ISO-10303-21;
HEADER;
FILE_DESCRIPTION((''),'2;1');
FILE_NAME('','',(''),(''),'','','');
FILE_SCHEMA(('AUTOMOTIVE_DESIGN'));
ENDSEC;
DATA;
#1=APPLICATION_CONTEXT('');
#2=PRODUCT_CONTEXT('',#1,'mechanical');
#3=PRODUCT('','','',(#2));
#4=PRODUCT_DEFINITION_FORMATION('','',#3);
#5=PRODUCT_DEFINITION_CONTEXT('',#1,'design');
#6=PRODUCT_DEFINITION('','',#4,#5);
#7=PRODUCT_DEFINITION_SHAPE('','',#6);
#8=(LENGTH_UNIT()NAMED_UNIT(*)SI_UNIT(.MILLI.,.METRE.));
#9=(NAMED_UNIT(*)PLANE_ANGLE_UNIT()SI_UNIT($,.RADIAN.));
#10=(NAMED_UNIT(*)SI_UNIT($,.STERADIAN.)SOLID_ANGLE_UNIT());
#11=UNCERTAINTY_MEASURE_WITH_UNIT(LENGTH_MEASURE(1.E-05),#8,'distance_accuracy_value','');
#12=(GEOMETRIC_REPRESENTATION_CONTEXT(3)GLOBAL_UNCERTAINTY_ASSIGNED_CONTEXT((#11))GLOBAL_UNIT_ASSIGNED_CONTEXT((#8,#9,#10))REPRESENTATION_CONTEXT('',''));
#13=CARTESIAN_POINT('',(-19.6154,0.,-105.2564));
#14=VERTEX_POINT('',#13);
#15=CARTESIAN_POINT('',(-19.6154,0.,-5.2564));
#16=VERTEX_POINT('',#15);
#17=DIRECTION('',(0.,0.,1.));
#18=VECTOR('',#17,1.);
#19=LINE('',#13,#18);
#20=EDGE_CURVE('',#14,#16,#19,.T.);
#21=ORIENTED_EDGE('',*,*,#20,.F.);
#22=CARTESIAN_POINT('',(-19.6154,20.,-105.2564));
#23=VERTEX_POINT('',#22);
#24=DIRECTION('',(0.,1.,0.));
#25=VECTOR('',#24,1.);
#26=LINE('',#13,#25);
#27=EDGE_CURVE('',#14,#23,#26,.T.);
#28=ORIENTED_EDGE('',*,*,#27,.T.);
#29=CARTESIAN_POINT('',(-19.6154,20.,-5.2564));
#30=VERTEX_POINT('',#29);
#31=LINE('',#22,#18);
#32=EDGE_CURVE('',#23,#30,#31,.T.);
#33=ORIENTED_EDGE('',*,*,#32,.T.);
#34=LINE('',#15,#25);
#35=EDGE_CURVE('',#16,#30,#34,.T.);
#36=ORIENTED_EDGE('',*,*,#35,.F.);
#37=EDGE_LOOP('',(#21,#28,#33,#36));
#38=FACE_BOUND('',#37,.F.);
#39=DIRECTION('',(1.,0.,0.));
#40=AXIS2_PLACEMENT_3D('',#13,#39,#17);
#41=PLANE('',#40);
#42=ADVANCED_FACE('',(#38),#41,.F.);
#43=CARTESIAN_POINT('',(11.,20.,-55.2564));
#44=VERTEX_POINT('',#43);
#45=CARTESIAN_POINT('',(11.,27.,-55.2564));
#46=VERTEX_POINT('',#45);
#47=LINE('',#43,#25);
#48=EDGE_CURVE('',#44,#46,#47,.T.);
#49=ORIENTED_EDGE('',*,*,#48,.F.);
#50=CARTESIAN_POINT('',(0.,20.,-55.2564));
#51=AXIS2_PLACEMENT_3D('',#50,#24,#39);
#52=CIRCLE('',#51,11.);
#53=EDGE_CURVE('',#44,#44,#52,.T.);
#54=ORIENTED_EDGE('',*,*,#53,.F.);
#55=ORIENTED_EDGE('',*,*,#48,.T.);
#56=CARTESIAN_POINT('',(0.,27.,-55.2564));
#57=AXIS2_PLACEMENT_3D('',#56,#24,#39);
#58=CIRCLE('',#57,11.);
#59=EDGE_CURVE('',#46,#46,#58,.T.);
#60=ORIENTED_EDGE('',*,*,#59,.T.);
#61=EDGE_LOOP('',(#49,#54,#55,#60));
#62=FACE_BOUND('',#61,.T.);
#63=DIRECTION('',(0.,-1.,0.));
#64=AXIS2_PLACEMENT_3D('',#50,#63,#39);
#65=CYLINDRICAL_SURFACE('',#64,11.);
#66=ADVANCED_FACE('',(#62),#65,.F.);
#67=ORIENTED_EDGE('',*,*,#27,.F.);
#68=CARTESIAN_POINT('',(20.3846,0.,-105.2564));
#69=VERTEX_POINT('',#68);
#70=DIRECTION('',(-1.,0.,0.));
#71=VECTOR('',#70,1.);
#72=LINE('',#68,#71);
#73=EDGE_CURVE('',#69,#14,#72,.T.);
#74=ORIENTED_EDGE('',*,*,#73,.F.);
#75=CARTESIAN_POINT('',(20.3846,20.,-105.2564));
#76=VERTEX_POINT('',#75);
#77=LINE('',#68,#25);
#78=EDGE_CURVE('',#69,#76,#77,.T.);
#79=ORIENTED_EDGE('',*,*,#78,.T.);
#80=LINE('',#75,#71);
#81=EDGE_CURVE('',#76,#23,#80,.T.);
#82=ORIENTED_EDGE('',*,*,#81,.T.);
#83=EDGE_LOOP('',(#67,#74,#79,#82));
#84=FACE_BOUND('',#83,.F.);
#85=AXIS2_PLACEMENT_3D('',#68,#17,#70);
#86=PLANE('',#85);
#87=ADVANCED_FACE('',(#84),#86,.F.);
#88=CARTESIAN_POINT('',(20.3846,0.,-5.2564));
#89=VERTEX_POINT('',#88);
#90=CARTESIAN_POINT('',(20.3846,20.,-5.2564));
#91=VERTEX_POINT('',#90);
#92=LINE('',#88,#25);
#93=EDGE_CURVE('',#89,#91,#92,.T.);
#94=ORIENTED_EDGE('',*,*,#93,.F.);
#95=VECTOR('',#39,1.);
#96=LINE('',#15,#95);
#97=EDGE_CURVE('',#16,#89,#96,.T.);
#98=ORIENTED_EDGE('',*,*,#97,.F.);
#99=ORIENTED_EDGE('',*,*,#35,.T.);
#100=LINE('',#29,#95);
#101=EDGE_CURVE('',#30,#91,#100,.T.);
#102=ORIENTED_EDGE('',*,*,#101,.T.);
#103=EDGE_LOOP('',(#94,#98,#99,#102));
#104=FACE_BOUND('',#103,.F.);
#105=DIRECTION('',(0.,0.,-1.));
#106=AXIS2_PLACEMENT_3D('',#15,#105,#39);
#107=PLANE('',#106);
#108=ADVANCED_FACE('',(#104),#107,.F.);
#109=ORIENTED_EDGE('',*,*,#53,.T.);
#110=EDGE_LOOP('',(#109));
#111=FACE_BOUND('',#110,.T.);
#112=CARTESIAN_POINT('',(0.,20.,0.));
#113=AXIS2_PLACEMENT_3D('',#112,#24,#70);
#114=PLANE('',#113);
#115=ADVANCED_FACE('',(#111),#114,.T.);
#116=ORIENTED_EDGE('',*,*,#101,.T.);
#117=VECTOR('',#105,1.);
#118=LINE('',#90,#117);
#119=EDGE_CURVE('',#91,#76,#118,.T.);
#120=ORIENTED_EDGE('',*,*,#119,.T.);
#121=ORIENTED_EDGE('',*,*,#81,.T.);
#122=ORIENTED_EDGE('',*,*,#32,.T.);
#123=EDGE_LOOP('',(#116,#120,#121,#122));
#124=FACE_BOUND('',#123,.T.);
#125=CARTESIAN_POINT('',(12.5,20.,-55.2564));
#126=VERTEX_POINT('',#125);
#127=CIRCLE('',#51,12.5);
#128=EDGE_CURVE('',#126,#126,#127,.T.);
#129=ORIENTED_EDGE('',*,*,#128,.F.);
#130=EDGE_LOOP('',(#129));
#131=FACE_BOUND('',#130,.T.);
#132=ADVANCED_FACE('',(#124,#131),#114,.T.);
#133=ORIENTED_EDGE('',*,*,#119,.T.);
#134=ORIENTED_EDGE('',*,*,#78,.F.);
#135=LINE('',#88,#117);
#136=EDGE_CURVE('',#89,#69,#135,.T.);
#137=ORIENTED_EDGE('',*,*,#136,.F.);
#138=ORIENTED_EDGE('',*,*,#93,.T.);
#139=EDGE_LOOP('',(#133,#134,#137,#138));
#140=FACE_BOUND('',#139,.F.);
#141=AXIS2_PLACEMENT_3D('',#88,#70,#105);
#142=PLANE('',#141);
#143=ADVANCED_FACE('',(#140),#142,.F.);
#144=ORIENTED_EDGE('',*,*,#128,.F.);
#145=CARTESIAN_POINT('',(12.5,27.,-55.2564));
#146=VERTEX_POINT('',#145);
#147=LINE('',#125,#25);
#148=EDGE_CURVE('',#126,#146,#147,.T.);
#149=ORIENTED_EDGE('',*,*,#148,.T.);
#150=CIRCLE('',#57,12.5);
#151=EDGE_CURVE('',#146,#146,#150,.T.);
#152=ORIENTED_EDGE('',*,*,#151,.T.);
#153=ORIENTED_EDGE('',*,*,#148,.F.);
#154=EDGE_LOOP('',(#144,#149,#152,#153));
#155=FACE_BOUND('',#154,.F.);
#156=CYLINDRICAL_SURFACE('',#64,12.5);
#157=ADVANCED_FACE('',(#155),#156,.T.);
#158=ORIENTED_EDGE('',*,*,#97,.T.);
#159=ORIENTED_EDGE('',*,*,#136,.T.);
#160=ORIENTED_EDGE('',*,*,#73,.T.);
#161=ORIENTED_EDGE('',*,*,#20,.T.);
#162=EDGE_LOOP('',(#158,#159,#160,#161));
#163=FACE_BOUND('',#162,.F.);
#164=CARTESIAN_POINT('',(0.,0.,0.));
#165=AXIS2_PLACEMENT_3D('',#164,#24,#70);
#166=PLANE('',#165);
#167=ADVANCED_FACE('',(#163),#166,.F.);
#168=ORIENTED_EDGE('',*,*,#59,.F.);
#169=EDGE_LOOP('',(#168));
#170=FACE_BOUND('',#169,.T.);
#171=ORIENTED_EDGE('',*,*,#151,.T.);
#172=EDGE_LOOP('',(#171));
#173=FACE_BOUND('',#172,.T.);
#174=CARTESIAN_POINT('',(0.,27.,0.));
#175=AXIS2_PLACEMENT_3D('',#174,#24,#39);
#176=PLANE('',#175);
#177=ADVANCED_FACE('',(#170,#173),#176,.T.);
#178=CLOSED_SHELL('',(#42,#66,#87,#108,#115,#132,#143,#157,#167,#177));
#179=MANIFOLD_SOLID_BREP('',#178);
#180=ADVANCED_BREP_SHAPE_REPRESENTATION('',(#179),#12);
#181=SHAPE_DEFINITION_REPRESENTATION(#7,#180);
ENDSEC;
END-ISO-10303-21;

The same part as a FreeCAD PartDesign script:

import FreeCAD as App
import Part
import Sketcher

V = App.Vector
Q = App.Units.Quantity

doc = App.newDocument("Part")
body = doc.addObject("PartDesign::Body", "Body")

# Sketch on XZ plane
sketch1 = doc.addObject("Sketcher::SketchObject", "Sketch")
body.addObject(sketch1)
sketch1.AttachmentSupport = (doc.XZ_Plane, [""])
sketch1.MapMode = "FlatFace"
sketch1.addGeometry([
    Part.LineSegment(V(-19.6154, -105.2564, 0), V(-19.6154, -5.2564, 0)),
    Part.LineSegment(V(-19.6154, -5.2564, 0), V(20.3846, -5.2564, 0)),
    Part.LineSegment(V(20.3846, -5.2564, 0), V(20.3846, -105.2564, 0)),
    Part.LineSegment(V(20.3846, -105.2564, 0), V(-19.6154, -105.2564, 0)),
], False)
sketch1.addConstraint([
    Sketcher.Constraint("Coincident", 0, 2, 1, 1),
    Sketcher.Constraint("Coincident", 1, 2, 2, 1),
    Sketcher.Constraint("Coincident", 2, 2, 3, 1),
    Sketcher.Constraint("Coincident", 3, 2, 0, 1),
    Sketcher.Constraint("Vertical", 0),
    Sketcher.Constraint("Horizontal", 1),
    Sketcher.Constraint("Vertical", 2),
    Sketcher.Constraint("Horizontal", 3),
    Sketcher.Constraint("DistanceX", 1, 1, 1, 2, Q("40 mm")),
    Sketcher.Constraint("DistanceY", 0, 1, 0, 2, Q("100 mm")),
    Sketcher.Constraint("DistanceX", 0, 2, -1, 1, Q("19.6154 mm")),
    Sketcher.Constraint("DistanceY", 0, 2, -1, 1, Q("5.2564 mm")),
])
pad1 = doc.addObject("PartDesign::Pad", "Pad")
body.addObject(pad1)
pad1.Profile = sketch1
pad1.Length = 20
pad1.Reversed = True

# Sketch on XZ plane
sketch2 = doc.addObject("Sketcher::SketchObject", "Sketch001")
body.addObject(sketch2)
sketch2.AttachmentSupport = (doc.XZ_Plane, [""])
sketch2.MapMode = "FlatFace"
sketch2.AttachmentOffset = App.Placement(V(0, 0, -20), App.Rotation())
sketch2.addGeometry([
    Part.Circle(V(0, -55.2564, 0), V(0, 0, 1), 12.5),
    Part.Circle(V(0, -55.2564, 0), V(0, 0, 1), 11),
], False)
sketch2.addConstraint([
    Sketcher.Constraint("Coincident", 1, 3, 0, 3),
    Sketcher.Constraint("PointOnObject", 0, 3, -2),
    Sketcher.Constraint("Diameter", 0, Q("25 mm")),
    Sketcher.Constraint("Diameter", 1, Q("22 mm")),
    Sketcher.Constraint("DistanceY", 0, 3, -1, 1, Q("55.2564 mm")),
])
pad2 = doc.addObject("PartDesign::Pad", "Pad001")
body.addObject(pad2)
pad2.Profile = sketch2
pad2.Length = 7
pad2.Reversed = True

doc.recompute()
